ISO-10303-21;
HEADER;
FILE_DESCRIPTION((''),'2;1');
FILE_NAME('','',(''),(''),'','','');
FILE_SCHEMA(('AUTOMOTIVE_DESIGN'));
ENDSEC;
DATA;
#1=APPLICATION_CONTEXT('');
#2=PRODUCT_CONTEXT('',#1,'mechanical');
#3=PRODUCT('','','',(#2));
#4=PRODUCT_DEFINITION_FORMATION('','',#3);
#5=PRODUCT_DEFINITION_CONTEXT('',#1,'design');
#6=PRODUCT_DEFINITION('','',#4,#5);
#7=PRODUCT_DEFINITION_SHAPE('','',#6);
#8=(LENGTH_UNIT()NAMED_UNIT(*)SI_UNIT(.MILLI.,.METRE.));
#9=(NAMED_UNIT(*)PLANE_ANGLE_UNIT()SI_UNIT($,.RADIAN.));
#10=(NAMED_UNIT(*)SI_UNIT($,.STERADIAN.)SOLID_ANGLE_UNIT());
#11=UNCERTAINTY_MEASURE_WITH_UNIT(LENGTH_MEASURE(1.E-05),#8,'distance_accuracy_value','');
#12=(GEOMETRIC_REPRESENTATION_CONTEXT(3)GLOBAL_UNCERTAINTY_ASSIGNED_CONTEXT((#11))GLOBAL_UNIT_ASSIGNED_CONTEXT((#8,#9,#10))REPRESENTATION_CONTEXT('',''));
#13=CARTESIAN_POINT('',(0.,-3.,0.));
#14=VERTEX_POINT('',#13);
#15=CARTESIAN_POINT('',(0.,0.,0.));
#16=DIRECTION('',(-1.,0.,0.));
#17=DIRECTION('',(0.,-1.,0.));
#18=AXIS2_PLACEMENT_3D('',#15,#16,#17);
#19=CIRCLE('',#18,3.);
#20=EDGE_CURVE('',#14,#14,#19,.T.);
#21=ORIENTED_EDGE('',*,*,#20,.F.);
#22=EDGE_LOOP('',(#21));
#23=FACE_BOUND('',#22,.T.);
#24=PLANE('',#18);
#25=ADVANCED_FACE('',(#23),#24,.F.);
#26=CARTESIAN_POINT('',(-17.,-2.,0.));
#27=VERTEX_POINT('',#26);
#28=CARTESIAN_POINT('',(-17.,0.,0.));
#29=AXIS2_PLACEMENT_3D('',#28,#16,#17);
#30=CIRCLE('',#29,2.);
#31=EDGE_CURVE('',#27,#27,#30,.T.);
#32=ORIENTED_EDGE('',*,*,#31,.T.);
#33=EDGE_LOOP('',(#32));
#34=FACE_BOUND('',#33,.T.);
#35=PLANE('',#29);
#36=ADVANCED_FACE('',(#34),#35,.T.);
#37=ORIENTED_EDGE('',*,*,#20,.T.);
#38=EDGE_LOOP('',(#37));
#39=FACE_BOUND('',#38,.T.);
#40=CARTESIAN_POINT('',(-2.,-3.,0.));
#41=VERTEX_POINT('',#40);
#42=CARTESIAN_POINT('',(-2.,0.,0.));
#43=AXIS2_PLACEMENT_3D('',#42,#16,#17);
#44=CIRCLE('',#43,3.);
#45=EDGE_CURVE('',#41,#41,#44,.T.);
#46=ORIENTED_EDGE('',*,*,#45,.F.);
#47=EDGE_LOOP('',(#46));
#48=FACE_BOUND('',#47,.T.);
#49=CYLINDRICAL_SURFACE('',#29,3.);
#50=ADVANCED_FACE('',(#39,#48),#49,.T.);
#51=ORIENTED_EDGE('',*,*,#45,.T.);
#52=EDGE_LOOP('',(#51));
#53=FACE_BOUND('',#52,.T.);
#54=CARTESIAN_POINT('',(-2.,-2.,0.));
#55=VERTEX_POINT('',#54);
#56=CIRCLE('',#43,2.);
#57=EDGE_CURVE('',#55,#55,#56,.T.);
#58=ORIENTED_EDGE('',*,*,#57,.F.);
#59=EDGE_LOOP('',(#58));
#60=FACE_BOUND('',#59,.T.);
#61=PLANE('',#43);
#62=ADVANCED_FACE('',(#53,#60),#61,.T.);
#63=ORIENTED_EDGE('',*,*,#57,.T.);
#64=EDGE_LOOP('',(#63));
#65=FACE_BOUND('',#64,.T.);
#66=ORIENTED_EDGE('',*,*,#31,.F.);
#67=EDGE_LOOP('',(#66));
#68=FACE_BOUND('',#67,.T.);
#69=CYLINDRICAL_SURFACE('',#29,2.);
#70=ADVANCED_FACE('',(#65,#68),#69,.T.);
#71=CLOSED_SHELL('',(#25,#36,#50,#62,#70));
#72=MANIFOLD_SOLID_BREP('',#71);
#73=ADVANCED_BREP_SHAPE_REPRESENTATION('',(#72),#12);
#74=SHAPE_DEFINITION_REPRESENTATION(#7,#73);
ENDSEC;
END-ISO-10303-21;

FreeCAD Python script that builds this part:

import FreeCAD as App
import Part
import Sketcher


def add_polygon(sketch, points):
    """Adds a closed chain of lines whose ends are joined by coincident constraints."""
    first, n = sketch.GeometryCount, len(points)
    for a, b in zip(points, points[1:] + points[:1]):
        sketch.addGeometry(Part.LineSegment(App.Vector(*a, 0), App.Vector(*b, 0)), False)
    for i in range(n):
        sketch.addConstraint(Sketcher.Constraint("Coincident", first + i, 2, first + (i + 1) % n, 1))

doc = App.newDocument("Part")
body = doc.addObject("PartDesign::Body", "Body")

# Sketch on XY plane
sketch1 = body.newObject("Sketcher::SketchObject", "Sketch")
sketch1.AttachmentSupport = (doc.getObject("XY_Plane"), [""])
sketch1.MapMode = "FlatFace"
add_polygon(sketch1, [(0, 0), (0, 3), (-2, 3), (-2, 2), (-17, 2), (-17, 0)])  # lines 0-5
sketch1.addConstraint([
    Sketcher.Constraint("Vertical", 0),
    Sketcher.Constraint("Horizontal", 1),
    Sketcher.Constraint("Vertical", 2),
    Sketcher.Constraint("Horizontal", 3),
    Sketcher.Constraint("Vertical", 4),
    Sketcher.Constraint("Horizontal", 5),
    Sketcher.Constraint("Coincident", 5, 2, -1, 1),
    Sketcher.Constraint("Equal", 1, 4),
    Sketcher.Constraint("DistanceX", 1, 2, 1, 1, 2.0),
    Sketcher.Constraint("DistanceX", 3, 2, 3, 1, 15.0),
    Sketcher.Constraint("DistanceY", 0, 1, 0, 2, 3.0),
])
revolution = body.newObject("PartDesign::Revolution", "Revolution")
revolution.Profile = sketch1
revolution.ReferenceAxis = (sketch1, ["H_Axis"])
revolution.Angle = 360

doc.recompute()
